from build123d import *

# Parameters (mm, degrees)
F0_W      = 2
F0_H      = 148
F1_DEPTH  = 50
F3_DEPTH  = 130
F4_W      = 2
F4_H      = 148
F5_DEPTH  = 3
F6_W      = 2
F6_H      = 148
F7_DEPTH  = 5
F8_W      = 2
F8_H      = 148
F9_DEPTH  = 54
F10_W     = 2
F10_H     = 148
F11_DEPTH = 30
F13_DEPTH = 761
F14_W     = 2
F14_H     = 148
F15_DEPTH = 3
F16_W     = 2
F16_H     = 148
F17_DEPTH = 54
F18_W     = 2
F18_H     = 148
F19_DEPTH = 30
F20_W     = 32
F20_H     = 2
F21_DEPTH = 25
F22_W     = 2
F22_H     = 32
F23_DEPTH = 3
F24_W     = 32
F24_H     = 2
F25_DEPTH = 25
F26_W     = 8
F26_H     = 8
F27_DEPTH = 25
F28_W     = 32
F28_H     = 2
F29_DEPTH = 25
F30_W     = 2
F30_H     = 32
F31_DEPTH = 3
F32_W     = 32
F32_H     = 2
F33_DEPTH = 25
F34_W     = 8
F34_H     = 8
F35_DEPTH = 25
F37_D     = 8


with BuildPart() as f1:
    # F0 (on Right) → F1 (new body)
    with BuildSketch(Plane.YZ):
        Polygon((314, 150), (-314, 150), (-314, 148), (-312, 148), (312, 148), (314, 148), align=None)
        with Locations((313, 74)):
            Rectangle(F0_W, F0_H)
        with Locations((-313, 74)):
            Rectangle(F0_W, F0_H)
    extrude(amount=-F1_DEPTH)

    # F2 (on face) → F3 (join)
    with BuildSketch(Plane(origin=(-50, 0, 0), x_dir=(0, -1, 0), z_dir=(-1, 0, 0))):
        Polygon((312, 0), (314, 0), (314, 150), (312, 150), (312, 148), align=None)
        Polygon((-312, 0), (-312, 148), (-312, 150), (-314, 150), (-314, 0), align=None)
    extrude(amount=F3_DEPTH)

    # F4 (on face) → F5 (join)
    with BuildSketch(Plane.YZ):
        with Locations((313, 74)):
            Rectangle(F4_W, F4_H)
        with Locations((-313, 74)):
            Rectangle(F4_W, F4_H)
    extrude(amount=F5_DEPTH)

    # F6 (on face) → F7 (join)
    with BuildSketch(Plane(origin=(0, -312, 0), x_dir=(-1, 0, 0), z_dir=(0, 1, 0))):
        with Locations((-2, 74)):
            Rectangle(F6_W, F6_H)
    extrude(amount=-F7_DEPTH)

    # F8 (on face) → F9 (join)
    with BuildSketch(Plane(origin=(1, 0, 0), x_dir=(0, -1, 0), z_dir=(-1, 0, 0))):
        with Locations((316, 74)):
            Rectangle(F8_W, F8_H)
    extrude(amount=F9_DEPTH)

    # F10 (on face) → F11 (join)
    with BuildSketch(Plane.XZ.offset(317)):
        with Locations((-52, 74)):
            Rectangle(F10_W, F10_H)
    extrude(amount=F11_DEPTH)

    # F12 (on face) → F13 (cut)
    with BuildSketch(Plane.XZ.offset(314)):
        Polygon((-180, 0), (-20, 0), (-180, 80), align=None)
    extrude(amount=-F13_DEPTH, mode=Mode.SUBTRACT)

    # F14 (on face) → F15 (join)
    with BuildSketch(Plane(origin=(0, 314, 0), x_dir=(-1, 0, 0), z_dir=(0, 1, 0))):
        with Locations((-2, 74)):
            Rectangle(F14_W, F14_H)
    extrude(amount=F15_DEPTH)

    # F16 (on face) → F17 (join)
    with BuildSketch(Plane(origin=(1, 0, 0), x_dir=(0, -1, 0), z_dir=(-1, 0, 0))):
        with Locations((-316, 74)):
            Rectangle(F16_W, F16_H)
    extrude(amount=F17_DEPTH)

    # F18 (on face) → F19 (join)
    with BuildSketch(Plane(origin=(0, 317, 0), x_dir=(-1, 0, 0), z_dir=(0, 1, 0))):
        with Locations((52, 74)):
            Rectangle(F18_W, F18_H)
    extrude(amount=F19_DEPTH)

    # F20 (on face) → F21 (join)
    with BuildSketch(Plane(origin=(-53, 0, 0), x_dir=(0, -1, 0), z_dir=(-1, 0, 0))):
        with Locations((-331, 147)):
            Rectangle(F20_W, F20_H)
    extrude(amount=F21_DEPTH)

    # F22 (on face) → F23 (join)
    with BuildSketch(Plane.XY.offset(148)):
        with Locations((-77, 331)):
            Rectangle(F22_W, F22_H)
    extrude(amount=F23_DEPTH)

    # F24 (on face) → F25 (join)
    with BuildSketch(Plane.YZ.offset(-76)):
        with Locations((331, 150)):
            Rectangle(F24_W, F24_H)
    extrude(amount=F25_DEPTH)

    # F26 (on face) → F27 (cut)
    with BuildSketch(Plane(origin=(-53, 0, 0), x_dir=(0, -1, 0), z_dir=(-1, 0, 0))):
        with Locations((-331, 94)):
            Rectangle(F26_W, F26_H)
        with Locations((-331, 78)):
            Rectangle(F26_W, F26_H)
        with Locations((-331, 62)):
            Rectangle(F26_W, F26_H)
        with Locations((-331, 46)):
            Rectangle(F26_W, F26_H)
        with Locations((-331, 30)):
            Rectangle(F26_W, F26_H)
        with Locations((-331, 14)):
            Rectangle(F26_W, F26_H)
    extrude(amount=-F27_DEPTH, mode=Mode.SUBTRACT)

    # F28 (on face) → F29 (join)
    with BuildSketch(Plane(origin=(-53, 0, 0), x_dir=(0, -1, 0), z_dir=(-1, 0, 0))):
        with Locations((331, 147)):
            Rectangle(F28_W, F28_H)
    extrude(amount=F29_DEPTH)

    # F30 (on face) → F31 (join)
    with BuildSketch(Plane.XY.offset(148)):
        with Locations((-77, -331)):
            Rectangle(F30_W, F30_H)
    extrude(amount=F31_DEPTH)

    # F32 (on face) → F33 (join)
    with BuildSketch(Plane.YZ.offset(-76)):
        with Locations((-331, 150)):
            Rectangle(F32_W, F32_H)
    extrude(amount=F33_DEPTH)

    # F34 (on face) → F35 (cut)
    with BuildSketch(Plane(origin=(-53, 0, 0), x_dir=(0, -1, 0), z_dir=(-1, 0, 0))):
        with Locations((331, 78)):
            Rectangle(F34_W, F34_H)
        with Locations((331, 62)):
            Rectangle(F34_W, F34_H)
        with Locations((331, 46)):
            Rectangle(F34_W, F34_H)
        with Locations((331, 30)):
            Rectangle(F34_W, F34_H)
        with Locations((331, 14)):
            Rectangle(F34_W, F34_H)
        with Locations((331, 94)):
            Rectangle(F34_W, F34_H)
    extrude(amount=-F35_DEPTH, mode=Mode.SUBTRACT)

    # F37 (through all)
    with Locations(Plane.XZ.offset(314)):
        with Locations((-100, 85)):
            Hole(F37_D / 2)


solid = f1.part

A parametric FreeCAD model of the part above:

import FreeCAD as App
import Part
import Sketcher

V = App.Vector
Q = App.Units.Quantity

doc = App.newDocument("Part")
body = doc.addObject("PartDesign::Body", "Body")

# Sketch on YZ plane
sketch1 = doc.addObject("Sketcher::SketchObject", "Sketch")
body.addObject(sketch1)
sketch1.AttachmentSupport = (doc.YZ_Plane, [""])
sketch1.MapMode = "FlatFace"
sketch1.addGeometry(Part.LineSegment(V(314, 150, 0), V(-314, 150, 0)), False)
sketch1.addGeometry(Part.LineSegment(V(-314, 150, 0), V(-314, 0, 0)), False)
sketch1.addGeometry(Part.LineSegment(V(-314, 0, 0), V(-312, 0, 0)), False)
sketch1.addGeometry(Part.LineSegment(V(-312, 0, 0), V(-312, 148, 0)), False)
sketch1.addGeometry(Part.LineSegment(V(-312, 148, 0), V(312, 148, 0)), False)
sketch1.addGeometry(Part.LineSegment(V(312, 148, 0), V(312, 0, 0)), False)
sketch1.addGeometry(Part.LineSegment(V(312, 0, 0), V(314, 0, 0)), False)
sketch1.addGeometry(Part.LineSegment(V(314, 0, 0), V(314, 150, 0)), False)
sketch1.addConstraint(Sketcher.Constraint("Coincident", 0, 2, 1, 1))
sketch1.addConstraint(Sketcher.Constraint("Coincident", 1, 2, 2, 1))
sketch1.addConstraint(Sketcher.Constraint("Coincident", 2, 2, 3, 1))
sketch1.addConstraint(Sketcher.Constraint("Coincident", 3, 2, 4, 1))
sketch1.addConstraint(Sketcher.Constraint("Coincident", 4, 2, 5, 1))
sketch1.addConstraint(Sketcher.Constraint("Coincident", 5, 2, 6, 1))
sketch1.addConstraint(Sketcher.Constraint("Coincident", 6, 2, 7, 1))
sketch1.addConstraint(Sketcher.Constraint("Coincident", 7, 2, 0, 1))
sketch1.addConstraint(Sketcher.Constraint("Horizontal", 0))
sketch1.addConstraint(Sketcher.Constraint("Vertical", 1))
sketch1.addConstraint(Sketcher.Constraint("Horizontal", 2))
sketch1.addConstraint(Sketcher.Constraint("Vertical", 3))
sketch1.addConstraint(Sketcher.Constraint("Horizontal", 4))
sketch1.addConstraint(Sketcher.Constraint("Vertical", 5))
sketch1.addConstraint(Sketcher.Constraint("Horizontal", 6))
sketch1.addConstraint(Sketcher.Constraint("Vertical", 7))
sketch1.addConstraint(Sketcher.Constraint("Symmetric", 2, 2, 5, 2, -1, 1))
sketch1.addConstraint(Sketcher.Constraint("Symmetric", 1, 2, 6, 2, -2))
sketch1.addConstraint(Sketcher.Constraint("DistanceX", 0, 2, 0, 1, Q("628 mm")))
sketch1.addConstraint(Sketcher.Constraint("DistanceX", 2, 1, 2, 2, Q("2 mm")))
sketch1.addConstraint(Sketcher.Constraint("DistanceY", 1, 2, 1, 1, Q("150 mm")))
sketch1.addConstraint(Sketcher.Constraint("DistanceY", 3, 1, 3, 2, Q("148 mm")))
pad1 = doc.addObject("PartDesign::Pad", "Pad")
body.addObject(pad1)
pad1.Profile = sketch1
pad1.Length = 50
pad1.Reversed = True

# Sketch on YZ plane
sketch2 = doc.addObject("Sketcher::SketchObject", "Sketch001")
body.addObject(sketch2)
sketch2.AttachmentSupport = (doc.YZ_Plane, [""])
sketch2.MapMode = "FlatFace"
sketch2.AttachmentOffset = App.Placement(V(0, 0, -50), App.Rotation())
sketch2.addGeometry(Part.LineSegment(V(-312, 0, 0), V(-314, 0, 0)), False)
sketch2.addGeometry(Part.LineSegment(V(-314, 0, 0), V(-314, 150, 0)), False)
sketch2.addGeometry(Part.LineSegment(V(-314, 150, 0), V(-312, 150, 0)), False)
sketch2.addGeometry(Part.LineSegment(V(-312, 150, 0), V(-312, 0, 0)), False)
sketch2.addGeometry(Part.LineSegment(V(312, 0, 0), V(312, 150, 0)), False)
sketch2.addGeometry(Part.LineSegment(V(312, 150, 0), V(314, 150, 0)), False)
sketch2.addGeometry(Part.LineSegment(V(314, 150, 0), V(314, 0, 0)), False)
sketch2.addGeometry(Part.LineSegment(V(314, 0, 0), V(312, 0, 0)), False)
sketch2.addConstraint(Sketcher.Constraint("Coincident", 0, 2, 1, 1))
sketch2.addConstraint(Sketcher.Constraint("Coincident", 1, 2, 2, 1))
sketch2.addConstraint(Sketcher.Constraint("Coincident", 2, 2, 3, 1))
sketch2.addConstraint(Sketcher.Constraint("Coincident", 3, 2, 0, 1))
sketch2.addConstraint(Sketcher.Constraint("Coincident", 4, 2, 5, 1))
sketch2.addConstraint(Sketcher.Constraint("Coincident", 5, 2, 6, 1))
sketch2.addConstraint(Sketcher.Constraint("Coincident", 6, 2, 7, 1))
sketch2.addConstraint(Sketcher.Constraint("Coincident", 7, 2, 4, 1))
sketch2.addConstraint(Sketcher.Constraint("Horizontal", 0))
sketch2.addConstraint(Sketcher.Constraint("Vertical", 1))
sketch2.addConstraint(Sketcher.Constraint("Horizontal", 2))
sketch2.addConstraint(Sketcher.Constraint("Vertical", 3))
sketch2.addConstraint(Sketcher.Constraint("Vertical", 4))
sketch2.addConstraint(Sketcher.Constraint("Horizontal", 5))
sketch2.addConstraint(Sketcher.Constraint("Vertical", 6))
sketch2.addConstraint(Sketcher.Constraint("Horizontal", 7))
sketch2.addConstraint(Sketcher.Constraint("Symmetric", 0, 2, 6, 2, -1, 1))
sketch2.addConstraint(Sketcher.Constraint("Symmetric", 2, 2, 4, 2, -2))
sketch2.addConstraint(Sketcher.Constraint("PointOnObject", 0, 2, -1))
sketch2.addConstraint(Sketcher.Constraint("DistanceX", 0, 2, 0, 1, Q("2 mm")))
sketch2.addConstraint(Sketcher.Constraint("DistanceY", 1, 1, 1, 2, Q("150 mm")))
sketch2.addConstraint(Sketcher.Constraint("DistanceX", 0, 2, -1, 1, Q("314 mm")))
pad2 = doc.addObject("PartDesign::Pad", "Pad001")
body.addObject(pad2)
pad2.Profile = sketch2
pad2.Length = 130
pad2.Reversed = True

# Sketch on YZ plane
sketch3 = doc.addObject("Sketcher::SketchObject", "Sketch002")
body.addObject(sketch3)
sketch3.AttachmentSupport = (doc.YZ_Plane, [""])
sketch3.MapMode = "FlatFace"
sketch3.addGeometry(Part.LineSegment(V(312, 148, 0), V(312, 0, 0)), False)
sketch3.addGeometry(Part.LineSegment(V(312, 0, 0), V(314, 0, 0)), False)
sketch3.addGeometry(Part.LineSegment(V(314, 0, 0), V(314, 148, 0)), False)
sketch3.addGeometry(Part.LineSegment(V(314, 148, 0), V(312, 148, 0)), False)
sketch3.addGeometry(Part.LineSegment(V(-314, 148, 0), V(-314, 0, 0)), False)
sketch3.addGeometry(Part.LineSegment(V(-314, 0, 0), V(-312, 0, 0)), False)
sketch3.addGeometry(Part.LineSegment(V(-312, 0, 0), V(-312, 148, 0)), False)
sketch3.addGeometry(Part.LineSegment(V(-312, 148, 0), V(-314, 148, 0)), False)
sketch3.addConstraint(Sketcher.Constraint("Coincident", 0, 2, 1, 1))
sketch3.addConstraint(Sketcher.Constraint("Coincident", 1, 2, 2, 1))
sketch3.addConstraint(Sketcher.Constraint("Coincident", 2, 2, 3, 1))
sketch3.addConstraint(Sketcher.Constraint("Coincident", 3, 2, 0, 1))
sketch3.addConstraint(Sketcher.Constraint("Coincident", 4, 2, 5, 1))
sketch3.addConstraint(Sketcher.Constraint("Coincident", 5, 2, 6, 1))
sketch3.addConstraint(Sketcher.Constraint("Coincident", 6, 2, 7, 1))
sketch3.addConstraint(Sketcher.Constraint("Coincident", 7, 2, 4, 1))
sketch3.addConstraint(Sketcher.Constraint("Vertical", 0))
sketch3.addConstraint(Sketcher.Constraint("Horizontal", 1))
sketch3.addConstraint(Sketcher.Constraint("Vertical", 2))
sketch3.addConstraint(Sketcher.Constraint("Horizontal", 3))
sketch3.addConstraint(Sketcher.Constraint("Vertical", 4))
sketch3.addConstraint(Sketcher.Constraint("Horizontal", 5))
sketch3.addConstraint(Sketcher.Constraint("Vertical", 6))
sketch3.addConstraint(Sketcher.Constraint("Horizontal", 7))
sketch3.addConstraint(Sketcher.Constraint("Symmetric", 1, 2, 4, 2, -1, 1))
sketch3.addConstraint(Sketcher.Constraint("Symmetric", 0, 2, 5, 2, -2))
sketch3.addConstraint(Sketcher.Constraint("Horizontal", 3, 2, 6, 2))
sketch3.addConstraint(Sketcher.Constraint("DistanceX", 1, 1, 1, 2, Q("2 mm")))
sketch3.addConstraint(Sketcher.Constraint("DistanceY", 0, 2, 0, 1, Q("148 mm")))
sketch3.addConstraint(Sketcher.Constraint("DistanceX", -1, 1, 0, 2, Q("312 mm")))
pad3 = doc.addObject("PartDesign::Pad", "Pad002")
body.addObject(pad3)
pad3.Profile = sketch3
pad3.Length = 3

# Sketch on XZ plane
sketch4 = doc.addObject("Sketcher::SketchObject", "Sketch003")
body.addObject(sketch4)
sketch4.AttachmentSupport = (doc.XZ_Plane, [""])
sketch4.MapMode = "FlatFace"
sketch4.AttachmentOffset = App.Placement(V(0, 0, 312), App.Rotation())
sketch4.addGeometry(Part.LineSegment(V(3, 148, 0), V(3, 0, 0)), False)
sketch4.addGeometry(Part.LineSegment(V(3, 0, 0), V(1, 0, 0)), False)
sketch4.addGeometry(Part.LineSegment(V(1, 0, 0), V(1, 148, 0)), False)
sketch4.addGeometry(Part.LineSegment(V(1, 148, 0), V(3, 148, 0)), False)
sketch4.addConstraint(Sketcher.Constraint("Coincident", 0, 2, 1, 1))
sketch4.addConstraint(Sketcher.Constraint("Coincident", 1, 2, 2, 1))
sketch4.addConstraint(Sketcher.Constraint("Coincident", 2, 2, 3, 1))
sketch4.addConstraint(Sketcher.Constraint("Coincident", 3, 2, 0, 1))
sketch4.addConstraint(Sketcher.Constraint("Vertical", 0))
sketch4.addConstraint(Sketcher.Constraint("Horizontal", 1))
sketch4.addConstraint(Sketcher.Constraint("Vertical", 2))
sketch4.addConstraint(Sketcher.Constraint("Horizontal", 3))
sketch4.addConstraint(Sketcher.Constraint("PointOnObject", 0, 2, -1))
sketch4.addConstraint(Sketcher.Constraint("DistanceX", 1, 2, 1, 1, Q("2 mm")))
sketch4.addConstraint(Sketcher.Constraint("DistanceY", 0, 2, 0, 1, Q("148 mm")))
sketch4.addConstraint(Sketcher.Constraint("DistanceX", -1, 1, 0, 2, Q("3 mm")))
pad4 = doc.addObject("PartDesign::Pad", "Pad003")
body.addObject(pad4)
pad4.Profile = sketch4
pad4.Length = 5

# Sketch on YZ plane
sketch5 = doc.addObject("Sketcher::SketchObject", "Sketch004")
body.addObject(sketch5)
sketch5.AttachmentSupport = (doc.YZ_Plane, [""])
sketch5.MapMode = "FlatFace"
sketch5.AttachmentOffset = App.Placement(V(0, 0, 1), App.Rotation())
sketch5.addGeometry(Part.LineSegment(V(-315, 148, 0), V(-315, 0, 0)), False)
sketch5.addGeometry(Part.LineSegment(V(-315, 0, 0), V(-317, 0, 0)), False)
sketch5.addGeometry(Part.LineSegment(V(-317, 0, 0), V(-317, 148, 0)), False)
sketch5.addGeometry(Part.LineSegment(V(-317, 148, 0), V(-315, 148, 0)), False)
sketch5.addConstraint(Sketcher.Constraint("Coincident", 0, 2, 1, 1))
sketch5.addConstraint(Sketcher.Constraint("Coincident", 1, 2, 2, 1))
sketch5.addConstraint(Sketcher.Constraint("Coincident", 2, 2, 3, 1))
sketch5.addConstraint(Sketcher.Constraint("Coincident", 3, 2, 0, 1))
sketch5.addConstraint(Sketcher.Constraint("Vertical", 0))
sketch5.addConstraint(Sketcher.Constraint("Horizontal", 1))
sketch5.addConstraint(Sketcher.Constraint("Vertical", 2))
sketch5.addConstraint(Sketcher.Constraint("Horizontal", 3))
sketch5.addConstraint(Sketcher.Constraint("PointOnObject", 0, 2, -1))
sketch5.addConstraint(Sketcher.Constraint("DistanceX", 1, 2, 1, 1, Q("2 mm")))
sketch5.addConstraint(Sketcher.Constraint("DistanceY", 0, 2, 0, 1, Q("148 mm")))
sketch5.addConstraint(Sketcher.Constraint("DistanceX", 0, 2, -1, 1, Q("315 mm")))
pad5 = doc.addObject("PartDesign::Pad", "Pad004")
body.addObject(pad5)
pad5.Profile = sketch5
pad5.Length = 54
pad5.Reversed = True

# Sketch on XZ plane
sketch6 = doc.addObject("Sketcher::SketchObject", "Sketch005")
body.addObject(sketch6)
sketch6.AttachmentSupport = (doc.XZ_Plane, [""])
sketch6.MapMode = "FlatFace"
sketch6.AttachmentOffset = App.Placement(V(0, 0, 317), App.Rotation())
sketch6.addGeometry(Part.LineSegment(V(-53, 148, 0), V(-53, 0, 0)), False)
sketch6.addGeometry(Part.LineSegment(V(-53, 0, 0), V(-51, 0, 0)), False)
sketch6.addGeometry(Part.LineSegment(V(-51, 0, 0), V(-51, 148, 0)), False)
sketch6.addGeometry(Part.LineSegment(V(-51, 148, 0), V(-53, 148, 0)), False)
sketch6.addConstraint(Sketcher.Constraint("Coincident", 0, 2, 1, 1))
sketch6.addConstraint(Sketcher.Constraint("Coincident", 1, 2, 2, 1))
sketch6.addConstraint(Sketcher.Constraint("Coincident", 2, 2, 3, 1))
sketch6.addConstraint(Sketcher.Constraint("Coincident", 3, 2, 0, 1))
sketch6.addConstraint(Sketcher.Constraint("Vertical", 0))
sketch6.addConstraint(Sketcher.Constraint("Horizontal", 1))
sketch6.addConstraint(Sketcher.Constraint("Vertical", 2))
sketch6.addConstraint(Sketcher.Constraint("Horizontal", 3))
sketch6.addConstraint(Sketcher.Constraint("PointOnObject", 0, 2, -1))
sketch6.addConstraint(Sketcher.Constraint("DistanceX", 1, 1, 1, 2, Q("2 mm")))
sketch6.addConstraint(Sketcher.Constraint("DistanceY", 0, 2, 0, 1, Q("148 mm")))
sketch6.addConstraint(Sketcher.Constraint("DistanceX", 0, 2, -1, 1, Q("53 mm")))
pad6 = doc.addObject("PartDesign::Pad", "Pad005")
body.addObject(pad6)
pad6.Profile = sketch6
pad6.Length = 30

# Sketch on XZ plane
sketch7 = doc.addObject("Sketcher::SketchObject", "Sketch006")
body.addObject(sketch7)
sketch7.AttachmentSupport = (doc.XZ_Plane, [""])
sketch7.MapMode = "FlatFace"
sketch7.AttachmentOffset = App.Placement(V(0, 0, 314), App.Rotation())
sketch7.addGeometry(Part.LineSegment(V(-180, 0, 0), V(-20, 0, 0)), False)
sketch7.addGeometry(Part.LineSegment(V(-20, 0, 0), V(-180, 80, 0)), False)
sketch7.addGeometry(Part.LineSegment(V(-180, 80, 0), V(-180, 0, 0)), False)
sketch7.addConstraint(Sketcher.Constraint("Coincident", 0, 2, 1, 1))
sketch7.addConstraint(Sketcher.Constraint("Coincident", 1, 2, 2, 1))
sketch7.addConstraint(Sketcher.Constraint("Coincident", 2, 2, 0, 1))
sketch7.addConstraint(Sketcher.Constraint("Horizontal", 0))
sketch7.addConstraint(Sketcher.Constraint("Vertical", 2))
sketch7.addConstraint(Sketcher.Constraint("PointOnObject", 0, 2, -1))
sketch7.addConstraint(Sketcher.Constraint("DistanceX", 0, 1, 0, 2, Q("160 mm")))
sketch7.addConstraint(Sketcher.Constraint("DistanceY", 2, 2, 2, 1, Q("80 mm")))
sketch7.addConstraint(Sketcher.Constraint("DistanceX", 0, 2, -1, 1, Q("20 mm")))
pocket1 = doc.addObject("PartDesign::Pocket", "Pocket")
body.addObject(pocket1)
pocket1.Profile = sketch7
pocket1.Length = 761

# Sketch on XZ plane
sketch8 = doc.addObject("Sketcher::SketchObject", "Sketch007")
body.addObject(sketch8)
sketch8.AttachmentSupport = (doc.XZ_Plane, [""])
sketch8.MapMode = "FlatFace"
sketch8.AttachmentOffset = App.Placement(V(0, 0, -314), App.Rotation())
sketch8.addGeometry(Part.LineSegment(V(3, 148, 0), V(3, 0, 0)), False)
sketch8.addGeometry(Part.LineSegment(V(3, 0, 0), V(1, 0, 0)), False)
sketch8.addGeometry(Part.LineSegment(V(1, 0, 0), V(1, 148, 0)), False)
sketch8.addGeometry(Part.LineSegment(V(1, 148, 0), V(3, 148, 0)), False)
sketch8.addConstraint(Sketcher.Constraint("Coincident", 0, 2, 1, 1))
sketch8.addConstraint(Sketcher.Constraint("Coincident", 1, 2, 2, 1))
sketch8.addConstraint(Sketcher.Constraint("Coincident", 2, 2, 3, 1))
sketch8.addConstraint(Sketcher.Constraint("Coincident", 3, 2, 0, 1))
sketch8.addConstraint(Sketcher.Constraint("Vertical", 0))
sketch8.addConstraint(Sketcher.Constraint("Horizontal", 1))
sketch8.addConstraint(Sketcher.Constraint("Vertical", 2))
sketch8.addConstraint(Sketcher.Constraint("Horizontal", 3))
sketch8.addConstraint(Sketcher.Constraint("PointOnObject", 0, 2, -1))
sketch8.addConstraint(Sketcher.Constraint("DistanceX", 1, 2, 1, 1, Q("2 mm")))
sketch8.addConstraint(Sketcher.Constraint("DistanceY", 0, 2, 0, 1, Q("148 mm")))
sketch8.addConstraint(Sketcher.Constraint("DistanceX", -1, 1, 0, 2, Q("3 mm")))
pad7 = doc.addObject("PartDesign::Pad", "Pad006")
body.addObject(pad7)
pad7.Profile = sketch8
pad7.Length = 3
pad7.Reversed = True

# Sketch on YZ plane
sketch9 = doc.addObject("Sketcher::SketchObject", "Sketch008")
body.addObject(sketch9)
sketch9.AttachmentSupport = (doc.YZ_Plane, [""])
sketch9.MapMode = "FlatFace"
sketch9.AttachmentOffset = App.Placement(V(0, 0, 1), App.Rotation())
sketch9.addGeometry(Part.LineSegment(V(317, 148, 0), V(317, 0, 0)), False)
sketch9.addGeometry(Part.LineSegment(V(317, 0, 0), V(315, 0, 0)), False)
sketch9.addGeometry(Part.LineSegment(V(315, 0, 0), V(315, 148, 0)), False)
sketch9.addGeometry(Part.LineSegment(V(315, 148, 0), V(317, 148, 0)), False)
sketch9.addConstraint(Sketcher.Constraint("Coincident", 0, 2, 1, 1))
sketch9.addConstraint(Sketcher.Constraint("Coincident", 1, 2, 2, 1))
sketch9.addConstraint(Sketcher.Constraint("Coincident", 2, 2, 3, 1))
sketch9.addConstraint(Sketcher.Constraint("Coincident", 3, 2, 0, 1))
sketch9.addConstraint(Sketcher.Constraint("Vertical", 0))
sketch9.addConstraint(Sketcher.Constraint("Horizontal", 1))
sketch9.addConstraint(Sketcher.Constraint("Vertical", 2))
sketch9.addConstraint(Sketcher.Constraint("Horizontal", 3))
sketch9.addConstraint(Sketcher.Constraint("PointOnObject", 0, 2, -1))
sketch9.addConstraint(Sketcher.Constraint("DistanceX", 1, 2, 1, 1, Q("2 mm")))
sketch9.addConstraint(Sketcher.Constraint("DistanceY", 0, 2, 0, 1, Q("148 mm")))
sketch9.addConstraint(Sketcher.Constraint("DistanceX", -1, 1, 0, 2, Q("317 mm")))
pad8 = doc.addObject("PartDesign::Pad", "Pad007")
body.addObject(pad8)
pad8.Profile = sketch9
pad8.Length = 54
pad8.Reversed = True

# Sketch on XZ plane
sketch10 = doc.addObject("Sketcher::SketchObject", "Sketch009")
body.addObject(sketch10)
sketch10.AttachmentSupport = (doc.XZ_Plane, [""])
sketch10.MapMode = "FlatFace"
sketch10.AttachmentOffset = App.Placement(V(0, 0, -317), App.Rotation())
sketch10.addGeometry(Part.LineSegment(V(-51, 148, 0), V(-51, 0, 0)), False)
sketch10.addGeometry(Part.LineSegment(V(-51, 0, 0), V(-53, 0, 0)), False)
sketch10.addGeometry(Part.LineSegment(V(-53, 0, 0), V(-53, 148, 0)), False)
sketch10.addGeometry(Part.LineSegment(V(-53, 148, 0), V(-51, 148, 0)), False)
sketch10.addConstraint(Sketcher.Constraint("Coincident", 0, 2, 1, 1))
sketch10.addConstraint(Sketcher.Constraint("Coincident", 1, 2, 2, 1))
sketch10.addConstraint(Sketcher.Constraint("Coincident", 2, 2, 3, 1))
sketch10.addConstraint(Sketcher.Constraint("Coincident", 3, 2, 0, 1))
sketch10.addConstraint(Sketcher.Constraint("Vertical", 0))
sketch10.addConstraint(Sketcher.Constraint("Horizontal", 1))
sketch10.addConstraint(Sketcher.Constraint("Vertical", 2))
sketch10.addConstraint(Sketcher.Constraint("Horizontal", 3))
sketch10.addConstraint(Sketcher.Constraint("PointOnObject", 0, 2, -1))
sketch10.addConstraint(Sketcher.Constraint("DistanceX", 1, 2, 1, 1, Q("2 mm")))
sketch10.addConstraint(Sketcher.Constraint("DistanceY", 0, 2, 0, 1, Q("148 mm")))
sketch10.addConstraint(Sketcher.Constraint("DistanceX", 0, 2, -1, 1, Q("51 mm")))
pad9 = doc.addObject("PartDesign::Pad", "Pad008")
body.addObject(pad9)
pad9.Profile = sketch10
pad9.Length = 30
pad9.Reversed = True

# Sketch on YZ plane
sketch11 = doc.addObject("Sketcher::SketchObject", "Sketch010")
body.addObject(sketch11)
sketch11.AttachmentSupport = (doc.YZ_Plane, [""])
sketch11.MapMode = "FlatFace"
sketch11.AttachmentOffset = App.Placement(V(0, 0, -53), App.Rotation())
sketch11.addGeometry(Part.LineSegment(V(347, 148, 0), V(347, 146, 0)), False)
sketch11.addGeometry(Part.LineSegment(V(347, 146, 0), V(315, 146, 0)), False)
sketch11.addGeometry(Part.LineSegment(V(315, 146, 0), V(315, 148, 0)), False)
sketch11.addGeometry(Part.LineSegment(V(315, 148, 0), V(347, 148, 0)), False)
sketch11.addConstraint(Sketcher.Constraint("Coincident", 0, 2, 1, 1))
sketch11.addConstraint(Sketcher.Constraint("Coincident", 1, 2, 2, 1))
sketch11.addConstraint(Sketcher.Constraint("Coincident", 2, 2, 3, 1))
sketch11.addConstraint(Sketcher.Constraint("Coincident", 3, 2, 0, 1))
sketch11.addConstraint(Sketcher.Constraint("Vertical", 0))
sketch11.addConstraint(Sketcher.Constraint("Horizontal", 1))
sketch11.addConstraint(Sketcher.Constraint("Vertical", 2))
sketch11.addConstraint(Sketcher.Constraint("Horizontal", 3))
sketch11.addConstraint(Sketcher.Constraint("DistanceX", 1, 2, 1, 1, Q("32 mm")))
sketch11.addConstraint(Sketcher.Constraint("DistanceY", 0, 2, 0, 1, Q("2 mm")))
sketch11.addConstraint(Sketcher.Constraint("DistanceX", -1, 1, 0, 2, Q("347 mm")))
sketch11.addConstraint(Sketcher.Constraint("DistanceY", -1, 1, 0, 2, Q("146 mm")))
pad10 = doc.addObject("PartDesign::Pad", "Pad009")
body.addObject(pad10)
pad10.Profile = sketch11
pad10.Length = 25
pad10.Reversed = True

# Sketch on XY plane
sketch12 = doc.addObject("Sketcher::SketchObject", "Sketch011")
body.addObject(sketch12)
sketch12.AttachmentSupport = (doc.XY_Plane, [""])
sketch12.MapMode = "FlatFace"
sketch12.AttachmentOffset = App.Placement(V(0, 0, 148), App.Rotation())
sketch12.addGeometry(Part.LineSegment(V(-78, 347, 0), V(-78, 315, 0)), False)
sketch12.addGeometry(Part.LineSegment(V(-78, 315, 0), V(-76, 315, 0)), False)
sketch12.addGeometry(Part.LineSegment(V(-76, 315, 0), V(-76, 347, 0)), False)
sketch12.addGeometry(Part.LineSegment(V(-76, 347, 0), V(-78, 347, 0)), False)
sketch12.addConstraint(Sketcher.Constraint("Coincident", 0, 2, 1, 1))
sketch12.addConstraint(Sketcher.Constraint("Coincident", 1, 2, 2, 1))
sketch12.addConstraint(Sketcher.Constraint("Coincident", 2, 2, 3, 1))
sketch12.addConstraint(Sketcher.Constraint("Coincident", 3, 2, 0, 1))
sketch12.addConstraint(Sketcher.Constraint("Vertical", 0))
sketch12.addConstraint(Sketcher.Constraint("Horizontal", 1))
sketch12.addConstraint(Sketcher.Constraint("Vertical", 2))
sketch12.addConstraint(Sketcher.Constraint("Horizontal", 3))
sketch12.addConstraint(Sketcher.Constraint("DistanceX", 1, 1, 1, 2, Q("2 mm")))
sketch12.addConstraint(Sketcher.Constraint("DistanceY", 0, 2, 0, 1, Q("32 mm")))
sketch12.addConstraint(Sketcher.Constraint("DistanceX", 0, 2, -1, 1, Q("78 mm")))
sketch12.addConstraint(Sketcher.Constraint("DistanceY", -1, 1, 0, 2, Q("315 mm")))
pad11 = doc.addObject("PartDesign::Pad", "Pad010")
body.addObject(pad11)
pad11.Profile = sketch12
pad11.Length = 3

# Sketch on YZ plane
sketch13 = doc.addObject("Sketcher::SketchObject", "Sketch012")
body.addObject(sketch13)
sketch13.AttachmentSupport = (doc.YZ_Plane, [""])
sketch13.MapMode = "FlatFace"
sketch13.AttachmentOffset = App.Placement(V(0, 0, -76), App.Rotation())
sketch13.addGeometry(Part.LineSegment(V(315, 151, 0), V(315, 149, 0)), False)
sketch13.addGeometry(Part.LineSegment(V(315, 149, 0), V(347, 149, 0)), False)
sketch13.addGeometry(Part.LineSegment(V(347, 149, 0), V(347, 151, 0)), False)
sketch13.addGeometry(Part.LineSegment(V(347, 151, 0), V(315, 151, 0)), False)
sketch13.addConstraint(Sketcher.Constraint("Coincident", 0, 2, 1, 1))
sketch13.addConstraint(Sketcher.Constraint("Coincident", 1, 2, 2, 1))
sketch13.addConstraint(Sketcher.Constraint("Coincident", 2, 2, 3, 1))
sketch13.addConstraint(Sketcher.Constraint("Coincident", 3, 2, 0, 1))
sketch13.addConstraint(Sketcher.Constraint("Vertical", 0))
sketch13.addConstraint(Sketcher.Constraint("Horizontal", 1))
sketch13.addConstraint(Sketcher.Constraint("Vertical", 2))
sketch13.addConstraint(Sketcher.Constraint("Horizontal", 3))
sketch13.addConstraint(Sketcher.Constraint("DistanceX", 1, 1, 1, 2, Q("32 mm")))
sketch13.addConstraint(Sketcher.Constraint("DistanceY", 0, 2, 0, 1, Q("2 mm")))
sketch13.addConstraint(Sketcher.Constraint("DistanceX", -1, 1, 0, 2, Q("315 mm")))
sketch13.addConstraint(Sketcher.Constraint("DistanceY", -1, 1, 0, 2, Q("149 mm")))
pad12 = doc.addObject("PartDesign::Pad", "Pad011")
body.addObject(pad12)
pad12.Profile = sketch13
pad12.Length = 25

# Sketch on YZ plane
sketch14 = doc.addObject("Sketcher::SketchObject", "Sketch013")
body.addObject(sketch14)
sketch14.AttachmentSupport = (doc.YZ_Plane, [""])
sketch14.MapMode = "FlatFace"
sketch14.AttachmentOffset = App.Placement(V(0, 0, -53), App.Rotation())
sketch14.addGeometry(Part.LineSegment(V(335, 98, 0), V(335, 90, 0)), False)
sketch14.addGeometry(Part.LineSegment(V(335, 90, 0), V(327, 90, 0)), False)
sketch14.addGeometry(Part.LineSegment(V(327, 90, 0), V(327, 98, 0)), False)
sketch14.addGeometry(Part.LineSegment(V(327, 98, 0), V(335, 98, 0)), False)
sketch14.addGeometry(Part.LineSegment(V(335, 82, 0), V(335, 74, 0)), False)
sketch14.addGeometry(Part.LineSegment(V(335, 74, 0), V(327, 74, 0)), False)
sketch14.addGeometry(Part.LineSegment(V(327, 74, 0), V(327, 82, 0)), False)
sketch14.addGeometry(Part.LineSegment(V(327, 82, 0), V(335, 82, 0)), False)
sketch14.addGeometry(Part.LineSegment(V(335, 66, 0), V(335, 58, 0)), False)
sketch14.addGeometry(Part.LineSegment(V(335, 58, 0), V(327, 58, 0)), False)
sketch14.addGeometry(Part.LineSegment(V(327, 58, 0), V(327, 66, 0)), False)
sketch14.addGeometry(Part.LineSegment(V(327, 66, 0), V(335, 66, 0)), False)
sketch14.addGeometry(Part.LineSegment(V(335, 50, 0), V(335, 42, 0)), False)
sketch14.addGeometry(Part.LineSegment(V(335, 42, 0), V(327, 42, 0)), False)
sketch14.addGeometry(Part.LineSegment(V(327, 42, 0), V(327, 50, 0)), False)
sketch14.addGeometry(Part.LineSegment(V(327, 50, 0), V(335, 50, 0)), False)
sketch14.addGeometry(Part.LineSegment(V(335, 34, 0), V(335, 26, 0)), False)
sketch14.addGeometry(Part.LineSegment(V(335, 26, 0), V(327, 26, 0)), False)
sketch14.addGeometry(Part.LineSegment(V(327, 26, 0), V(327, 34, 0)), False)
sketch14.addGeometry(Part.LineSegment(V(327, 34, 0), V(335, 34, 0)), False)
sketch14.addGeometry(Part.LineSegment(V(335, 18, 0), V(335, 10, 0)), False)
sketch14.addGeometry(Part.LineSegment(V(335, 10, 0), V(327, 10, 0)), False)
sketch14.addGeometry(Part.LineSegment(V(327, 10, 0), V(327, 18, 0)), False)
sketch14.addGeometry(Part.LineSegment(V(327, 18, 0), V(335, 18, 0)), False)
sketch14.addConstraint(Sketcher.Constraint("Coincident", 0, 2, 1, 1))
sketch14.addConstraint(Sketcher.Constraint("Coincident", 1, 2, 2, 1))
sketch14.addConstraint(Sketcher.Constraint("Coincident", 2, 2, 3, 1))
sketch14.addConstraint(Sketcher.Constraint("Coincident", 3, 2, 0, 1))
sketch14.addConstraint(Sketcher.Constraint("Coincident", 4, 2, 5, 1))
sketch14.addConstraint(Sketcher.Constraint("Coincident", 5, 2, 6, 1))
sketch14.addConstraint(Sketcher.Constraint("Coincident", 6, 2, 7, 1))
sketch14.addConstraint(Sketcher.Constraint("Coincident", 7, 2, 4, 1))
sketch14.addConstraint(Sketcher.Constraint("Coincident", 8, 2, 9, 1))
sketch14.addConstraint(Sketcher.Constraint("Coincident", 9, 2, 10, 1))
sketch14.addConstraint(Sketcher.Constraint("Coincident", 10, 2, 11, 1))
sketch14.addConstraint(Sketcher.Constraint("Coincident", 11, 2, 8, 1))
sketch14.addConstraint(Sketcher.Constraint("Coincident", 12, 2, 13, 1))
sketch14.addConstraint(Sketcher.Constraint("Coincident", 13, 2, 14, 1))
sketch14.addConstraint(Sketcher.Constraint("Coincident", 14, 2, 15, 1))
sketch14.addConstraint(Sketcher.Constraint("Coincident", 15, 2, 12, 1))
sketch14.addConstraint(Sketcher.Constraint("Coincident", 16, 2, 17, 1))
sketch14.addConstraint(Sketcher.Constraint("Coincident", 17, 2, 18, 1))
sketch14.addConstraint(Sketcher.Constraint("Coincident", 18, 2, 19, 1))
sketch14.addConstraint(Sketcher.Constraint("Coincident", 19, 2, 16, 1))
sketch14.addConstraint(Sketcher.Constraint("Coincident", 20, 2, 21, 1))
sketch14.addConstraint(Sketcher.Constraint("Coincident", 21, 2, 22, 1))
sketch14.addConstraint(Sketcher.Constraint("Coincident", 22, 2, 23, 1))
sketch14.addConstraint(Sketcher.Constraint("Coincident", 23, 2, 20, 1))
sketch14.addConstraint(Sketcher.Constraint("Vertical", 0))
sketch14.addConstraint(Sketcher.Constraint("Horizontal", 1))
sketch14.addConstraint(Sketcher.Constraint("Vertical", 2))
sketch14.addConstraint(Sketcher.Constraint("Horizontal", 3))
sketch14.addConstraint(Sketcher.Constraint("Vertical", 4))
sketch14.addConstraint(Sketcher.Constraint("Horizontal", 5))
sketch14.addConstraint(Sketcher.Constraint("Vertical", 6))
sketch14.addConstraint(Sketcher.Constraint("Horizontal", 7))
sketch14.addConstraint(Sketcher.Constraint("Vertical", 8))
sketch14.addConstraint(Sketcher.Constraint("Horizontal", 9))
sketch14.addConstraint(Sketcher.Constraint("Vertical", 10))
sketch14.addConstraint(Sketcher.Constraint("Horizontal", 11))
sketch14.addConstraint(Sketcher.Constraint("Vertical", 12))
sketch14.addConstraint(Sketcher.Constraint("Horizontal", 13))
sketch14.addConstraint(Sketcher.Constraint("Vertical", 14))
sketch14.addConstraint(Sketcher.Constraint("Horizontal", 15))
sketch14.addConstraint(Sketcher.Constraint("Vertical", 16))
sketch14.addConstraint(Sketcher.Constraint("Horizontal", 17))
sketch14.addConstraint(Sketcher.Constraint("Vertical", 18))
sketch14.addConstraint(Sketcher.Constraint("Horizontal", 19))
sketch14.addConstraint(Sketcher.Constraint("Vertical", 20))
sketch14.addConstraint(Sketcher.Constraint("Horizontal", 21))
sketch14.addConstraint(Sketcher.Constraint("Vertical", 22))
sketch14.addConstraint(Sketcher.Constraint("Horizontal", 23))
sketch14.addConstraint(Sketcher.Constraint("Vertical", 3, 2, 4, 2))
sketch14.addConstraint(Sketcher.Constraint("Vertical", 2, 2, 5, 2))
sketch14.addConstraint(Sketcher.Constraint("Vertical", 7, 2, 8, 2))
sketch14.addConstraint(Sketcher.Constraint("Vertical", 6, 2, 9, 2))
sketch14.addConstraint(Sketcher.Constraint("Vertical", 11, 2, 12, 2))
sketch14.addConstraint(Sketcher.Constraint("Vertical", 10, 2, 13, 2))
sketch14.addConstraint(Sketcher.Constraint("Vertical", 15, 2, 16, 2))
sketch14.addConstraint(Sketcher.Constraint("Vertical", 14, 2, 17, 2))
sketch14.addConstraint(Sketcher.Constraint("Vertical", 19, 2, 20, 2))
sketch14.addConstraint(Sketcher.Constraint("Vertical", 18, 2, 21, 2))
sketch14.addConstraint(Sketcher.Constraint("Equal", 23, 0))
sketch14.addConstraint(Sketcher.Constraint("Equal", 2, 4))
sketch14.addConstraint(Sketcher.Constraint("Equal", 6, 8))
sketch14.addConstraint(Sketcher.Constraint("Equal", 10, 12))
sketch14.addConstraint(Sketcher.Constraint("Equal", 14, 16))
sketch14.addConstraint(Sketcher.Constraint("Equal", 18, 20))
sketch14.addConstraint(Sketcher.Constraint("DistanceX", 1, 2, 1, 1, Q("8 mm")))
sketch14.addConstraint(Sketcher.Constraint("DistanceX", -1, 1, 0, 2, Q("335 mm")))
sketch14.addConstraint(Sketcher.Constraint("DistanceY", -1, 1, 0, 2, Q("90 mm")))
sketch14.addConstraint(Sketcher.Constraint("DistanceY", -1, 1, 4, 2, Q("74 mm")))
sketch14.addConstraint(Sketcher.Constraint("DistanceY", -1, 1, 8, 2, Q("58 mm")))
sketch14.addConstraint(Sketcher.Constraint("DistanceY", -1, 1, 12, 2, Q("42 mm")))
sketch14.addConstraint(Sketcher.Constraint("DistanceY", -1, 1, 16, 2, Q("26 mm")))
sketch14.addConstraint(Sketcher.Constraint("DistanceY", -1, 1, 20, 2, Q("10 mm")))
pocket2 = doc.addObject("PartDesign::Pocket", "Pocket001")
body.addObject(pocket2)
pocket2.Profile = sketch14
pocket2.Length = 25
pocket2.Reversed = True

# Sketch on YZ plane
sketch15 = doc.addObject("Sketcher::SketchObject", "Sketch014")
body.addObject(sketch15)
sketch15.AttachmentSupport = (doc.YZ_Plane, [""])
sketch15.MapMode = "FlatFace"
sketch15.AttachmentOffset = App.Placement(V(0, 0, -53), App.Rotation())
sketch15.addGeometry(Part.LineSegment(V(-315, 148, 0), V(-315, 146, 0)), False)
sketch15.addGeometry(Part.LineSegment(V(-315, 146, 0), V(-347, 146, 0)), False)
sketch15.addGeometry(Part.LineSegment(V(-347, 146, 0), V(-347, 148, 0)), False)
sketch15.addGeometry(Part.LineSegment(V(-347, 148, 0), V(-315, 148, 0)), False)
sketch15.addConstraint(Sketcher.Constraint("Coincident", 0, 2, 1, 1))
sketch15.addConstraint(Sketcher.Constraint("Coincident", 1, 2, 2, 1))
sketch15.addConstraint(Sketcher.Constraint("Coincident", 2, 2, 3, 1))
sketch15.addConstraint(Sketcher.Constraint("Coincident", 3, 2, 0, 1))
sketch15.addConstraint(Sketcher.Constraint("Vertical", 0))
sketch15.addConstraint(Sketcher.Constraint("Horizontal", 1))
sketch15.addConstraint(Sketcher.Constraint("Vertical", 2))
sketch15.addConstraint(Sketcher.Constraint("Horizontal", 3))
sketch15.addConstraint(Sketcher.Constraint("DistanceX", 1, 2, 1, 1, Q("32 mm")))
sketch15.addConstraint(Sketcher.Constraint("DistanceY", 0, 2, 0, 1, Q("2 mm")))
sketch15.addConstraint(Sketcher.Constraint("DistanceX", 0, 2, -1, 1, Q("315 mm")))
sketch15.addConstraint(Sketcher.Constraint("DistanceY", -1, 1, 0, 2, Q("146 mm")))
pad13 = doc.addObject("PartDesign::Pad", "Pad012")
body.addObject(pad13)
pad13.Profile = sketch15
pad13.Length = 25
pad13.Reversed = True

# Sketch on XY plane
sketch16 = doc.addObject("Sketcher::SketchObject", "Sketch015")
body.addObject(sketch16)
sketch16.AttachmentSupport = (doc.XY_Plane, [""])
sketch16.MapMode = "FlatFace"
sketch16.AttachmentOffset = App.Placement(V(0, 0, 148), App.Rotation())
sketch16.addGeometry(Part.LineSegment(V(-78, -315, 0), V(-78, -347, 0)), False)
sketch16.addGeometry(Part.LineSegment(V(-78, -347, 0), V(-76, -347, 0)), False)
sketch16.addGeometry(Part.LineSegment(V(-76, -347, 0), V(-76, -315, 0)), False)
sketch16.addGeometry(Part.LineSegment(V(-76, -315, 0), V(-78, -315, 0)), False)
sketch16.addConstraint(Sketcher.Constraint("Coincident", 0, 2, 1, 1))
sketch16.addConstraint(Sketcher.Constraint("Coincident", 1, 2, 2, 1))
sketch16.addConstraint(Sketcher.Constraint("Coincident", 2, 2, 3, 1))
sketch16.addConstraint(Sketcher.Constraint("Coincident", 3, 2, 0, 1))
sketch16.addConstraint(Sketcher.Constraint("Vertical", 0))
sketch16.addConstraint(Sketcher.Constraint("Horizontal", 1))
sketch16.addConstraint(Sketcher.Constraint("Vertical", 2))
sketch16.addConstraint(Sketcher.Constraint("Horizontal", 3))
sketch16.addConstraint(Sketcher.Constraint("DistanceX", 1, 1, 1, 2, Q("2 mm")))
sketch16.addConstraint(Sketcher.Constraint("DistanceY", 0, 2, 0, 1, Q("32 mm")))
sketch16.addConstraint(Sketcher.Constraint("DistanceX", 0, 2, -1, 1, Q("78 mm")))
sketch16.addConstraint(Sketcher.Constraint("DistanceY", 0, 2, -1, 1, Q("347 mm")))
pad14 = doc.addObject("PartDesign::Pad", "Pad013")
body.addObject(pad14)
pad14.Profile = sketch16
pad14.Length = 3

# Sketch on YZ plane
sketch17 = doc.addObject("Sketcher::SketchObject", "Sketch016")
body.addObject(sketch17)
sketch17.AttachmentSupport = (doc.YZ_Plane, [""])
sketch17.MapMode = "FlatFace"
sketch17.AttachmentOffset = App.Placement(V(0, 0, -76), App.Rotation())
sketch17.addGeometry(Part.LineSegment(V(-347, 151, 0), V(-347, 149, 0)), False)
sketch17.addGeometry(Part.LineSegment(V(-347, 149, 0), V(-315, 149, 0)), False)
sketch17.addGeometry(Part.LineSegment(V(-315, 149, 0), V(-315, 151, 0)), False)
sketch17.addGeometry(Part.LineSegment(V(-315, 151, 0), V(-347, 151, 0)), False)
sketch17.addConstraint(Sketcher.Constraint("Coincident", 0, 2, 1, 1))
sketch17.addConstraint(Sketcher.Constraint("Coincident", 1, 2, 2, 1))
sketch17.addConstraint(Sketcher.Constraint("Coincident", 2, 2, 3, 1))
sketch17.addConstraint(Sketcher.Constraint("Coincident", 3, 2, 0, 1))
sketch17.addConstraint(Sketcher.Constraint("Vertical", 0))
sketch17.addConstraint(Sketcher.Constraint("Horizontal", 1))
sketch17.addConstraint(Sketcher.Constraint("Vertical", 2))
sketch17.addConstraint(Sketcher.Constraint("Horizontal", 3))
sketch17.addConstraint(Sketcher.Constraint("DistanceX", 1, 1, 1, 2, Q("32 mm")))
sketch17.addConstraint(Sketcher.Constraint("DistanceY", 0, 2, 0, 1, Q("2 mm")))
sketch17.addConstraint(Sketcher.Constraint("DistanceX", 0, 2, -1, 1, Q("347 mm")))
sketch17.addConstraint(Sketcher.Constraint("DistanceY", -1, 1, 0, 2, Q("149 mm")))
pad15 = doc.addObject("PartDesign::Pad", "Pad014")
body.addObject(pad15)
pad15.Profile = sketch17
pad15.Length = 25

# Sketch on YZ plane
sketch18 = doc.addObject("Sketcher::SketchObject", "Sketch017")
body.addObject(sketch18)
sketch18.AttachmentSupport = (doc.YZ_Plane, [""])
sketch18.MapMode = "FlatFace"
sketch18.AttachmentOffset = App.Placement(V(0, 0, -53), App.Rotation())
sketch18.addGeometry(Part.LineSegment(V(-327, 82, 0), V(-327, 74, 0)), False)
sketch18.addGeometry(Part.LineSegment(V(-327, 74, 0), V(-335, 74, 0)), False)
sketch18.addGeometry(Part.LineSegment(V(-335, 74, 0), V(-335, 82, 0)), False)
sketch18.addGeometry(Part.LineSegment(V(-335, 82, 0), V(-327, 82, 0)), False)
sketch18.addGeometry(Part.LineSegment(V(-327, 66, 0), V(-327, 58, 0)), False)
sketch18.addGeometry(Part.LineSegment(V(-327, 58, 0), V(-335, 58, 0)), False)
sketch18.addGeometry(Part.LineSegment(V(-335, 58, 0), V(-335, 66, 0)), False)
sketch18.addGeometry(Part.LineSegment(V(-335, 66, 0), V(-327, 66, 0)), False)
sketch18.addGeometry(Part.LineSegment(V(-327, 50, 0), V(-327, 42, 0)), False)
sketch18.addGeometry(Part.LineSegment(V(-327, 42, 0), V(-335, 42, 0)), False)
sketch18.addGeometry(Part.LineSegment(V(-335, 42, 0), V(-335, 50, 0)), False)
sketch18.addGeometry(Part.LineSegment(V(-335, 50, 0), V(-327, 50, 0)), False)
sketch18.addGeometry(Part.LineSegment(V(-327, 34, 0), V(-327, 26, 0)), False)
sketch18.addGeometry(Part.LineSegment(V(-327, 26, 0), V(-335, 26, 0)), False)
sketch18.addGeometry(Part.LineSegment(V(-335, 26, 0), V(-335, 34, 0)), False)
sketch18.addGeometry(Part.LineSegment(V(-335, 34, 0), V(-327, 34, 0)), False)
sketch18.addGeometry(Part.LineSegment(V(-327, 18, 0), V(-327, 10, 0)), False)
sketch18.addGeometry(Part.LineSegment(V(-327, 10, 0), V(-335, 10, 0)), False)
sketch18.addGeometry(Part.LineSegment(V(-335, 10, 0), V(-335, 18, 0)), False)
sketch18.addGeometry(Part.LineSegment(V(-335, 18, 0), V(-327, 18, 0)), False)
sketch18.addGeometry(Part.LineSegment(V(-327, 98, 0), V(-327, 90, 0)), False)
sketch18.addGeometry(Part.LineSegment(V(-327, 90, 0), V(-335, 90, 0)), False)
sketch18.addGeometry(Part.LineSegment(V(-335, 90, 0), V(-335, 98, 0)), False)
sketch18.addGeometry(Part.LineSegment(V(-335, 98, 0), V(-327, 98, 0)), False)
sketch18.addConstraint(Sketcher.Constraint("Coincident", 0, 2, 1, 1))
sketch18.addConstraint(Sketcher.Constraint("Coincident", 1, 2, 2, 1))
sketch18.addConstraint(Sketcher.Constraint("Coincident", 2, 2, 3, 1))
sketch18.addConstraint(Sketcher.Constraint("Coincident", 3, 2, 0, 1))
sketch18.addConstraint(Sketcher.Constraint("Coincident", 4, 2, 5, 1))
sketch18.addConstraint(Sketcher.Constraint("Coincident", 5, 2, 6, 1))
sketch18.addConstraint(Sketcher.Constraint("Coincident", 6, 2, 7, 1))
sketch18.addConstraint(Sketcher.Constraint("Coincident", 7, 2, 4, 1))
sketch18.addConstraint(Sketcher.Constraint("Coincident", 8, 2, 9, 1))
sketch18.addConstraint(Sketcher.Constraint("Coincident", 9, 2, 10, 1))
sketch18.addConstraint(Sketcher.Constraint("Coincident", 10, 2, 11, 1))
sketch18.addConstraint(Sketcher.Constraint("Coincident", 11, 2, 8, 1))
sketch18.addConstraint(Sketcher.Constraint("Coincident", 12, 2, 13, 1))
sketch18.addConstraint(Sketcher.Constraint("Coincident", 13, 2, 14, 1))
sketch18.addConstraint(Sketcher.Constraint("Coincident", 14, 2, 15, 1))
sketch18.addConstraint(Sketcher.Constraint("Coincident", 15, 2, 12, 1))
sketch18.addConstraint(Sketcher.Constraint("Coincident", 16, 2, 17, 1))
sketch18.addConstraint(Sketcher.Constraint("Coincident", 17, 2, 18, 1))
sketch18.addConstraint(Sketcher.Constraint("Coincident", 18, 2, 19, 1))
sketch18.addConstraint(Sketcher.Constraint("Coincident", 19, 2, 16, 1))
sketch18.addConstraint(Sketcher.Constraint("Coincident", 20, 2, 21, 1))
sketch18.addConstraint(Sketcher.Constraint("Coincident", 21, 2, 22, 1))
sketch18.addConstraint(Sketcher.Constraint("Coincident", 22, 2, 23, 1))
sketch18.addConstraint(Sketcher.Constraint("Coincident", 23, 2, 20, 1))
sketch18.addConstraint(Sketcher.Constraint("Vertical", 0))
sketch18.addConstraint(Sketcher.Constraint("Horizontal", 1))
sketch18.addConstraint(Sketcher.Constraint("Vertical", 2))
sketch18.addConstraint(Sketcher.Constraint("Horizontal", 3))
sketch18.addConstraint(Sketcher.Constraint("Vertical", 4))
sketch18.addConstraint(Sketcher.Constraint("Horizontal", 5))
sketch18.addConstraint(Sketcher.Constraint("Vertical", 6))
sketch18.addConstraint(Sketcher.Constraint("Horizontal", 7))
sketch18.addConstraint(Sketcher.Constraint("Vertical", 8))
sketch18.addConstraint(Sketcher.Constraint("Horizontal", 9))
sketch18.addConstraint(Sketcher.Constraint("Vertical", 10))
sketch18.addConstraint(Sketcher.Constraint("Horizontal", 11))
sketch18.addConstraint(Sketcher.Constraint("Vertical", 12))
sketch18.addConstraint(Sketcher.Constraint("Horizontal", 13))
sketch18.addConstraint(Sketcher.Constraint("Vertical", 14))
sketch18.addConstraint(Sketcher.Constraint("Horizontal", 15))
sketch18.addConstraint(Sketcher.Constraint("Vertical", 16))
sketch18.addConstraint(Sketcher.Constraint("Horizontal", 17))
sketch18.addConstraint(Sketcher.Constraint("Vertical", 18))
sketch18.addConstraint(Sketcher.Constraint("Horizontal", 19))
sketch18.addConstraint(Sketcher.Constraint("Vertical", 20))
sketch18.addConstraint(Sketcher.Constraint("Horizontal", 21))
sketch18.addConstraint(Sketcher.Constraint("Vertical", 22))
sketch18.addConstraint(Sketcher.Constraint("Horizontal", 23))
sketch18.addConstraint(Sketcher.Constraint("Vertical", 3, 2, 4, 2))
sketch18.addConstraint(Sketcher.Constraint("Vertical", 2, 2, 5, 2))
sketch18.addConstraint(Sketcher.Constraint("Vertical", 7, 2, 8, 2))
sketch18.addConstraint(Sketcher.Constraint("Vertical", 6, 2, 9, 2))
sketch18.addConstraint(Sketcher.Constraint("Vertical", 11, 2, 12, 2))
sketch18.addConstraint(Sketcher.Constraint("Vertical", 10, 2, 13, 2))
sketch18.addConstraint(Sketcher.Constraint("Vertical", 15, 2, 16, 2))
sketch18.addConstraint(Sketcher.Constraint("Vertical", 14, 2, 17, 2))
sketch18.addConstraint(Sketcher.Constraint("Vertical", 19, 2, 20, 2))
sketch18.addConstraint(Sketcher.Constraint("Vertical", 18, 2, 21, 2))
sketch18.addConstraint(Sketcher.Constraint("Equal", 23, 0))
sketch18.addConstraint(Sketcher.Constraint("Equal", 2, 4))
sketch18.addConstraint(Sketcher.Constraint("Equal", 6, 8))
sketch18.addConstraint(Sketcher.Constraint("Equal", 10, 12))
sketch18.addConstraint(Sketcher.Constraint("Equal", 14, 16))
sketch18.addConstraint(Sketcher.Constraint("Equal", 18, 20))
sketch18.addConstraint(Sketcher.Constraint("DistanceX", 1, 2, 1, 1, Q("8 mm")))
sketch18.addConstraint(Sketcher.Constraint("DistanceX", 0, 2, -1, 1, Q("327 mm")))
sketch18.addConstraint(Sketcher.Constraint("DistanceY", -1, 1, 0, 2, Q("74 mm")))
sketch18.addConstraint(Sketcher.Constraint("DistanceY", -1, 1, 4, 2, Q("58 mm")))
sketch18.addConstraint(Sketcher.Constraint("DistanceY", -1, 1, 8, 2, Q("42 mm")))
sketch18.addConstraint(Sketcher.Constraint("DistanceY", -1, 1, 12, 2, Q("26 mm")))
sketch18.addConstraint(Sketcher.Constraint("DistanceY", -1, 1, 16, 2, Q("10 mm")))
sketch18.addConstraint(Sketcher.Constraint("DistanceY", -1, 1, 20, 2, Q("90 mm")))
pocket3 = doc.addObject("PartDesign::Pocket", "Pocket002")
body.addObject(pocket3)
pocket3.Profile = sketch18
pocket3.Length = 25
pocket3.Reversed = True

# Sketch on XZ plane
sketch19 = doc.addObject("Sketcher::SketchObject", "Sketch018")
body.addObject(sketch19)
sketch19.AttachmentSupport = (doc.XZ_Plane, [""])
sketch19.MapMode = "FlatFace"
sketch19.AttachmentOffset = App.Placement(V(0, 0, 314), App.Rotation())
sketch19.addGeometry(Part.Circle(V(-100, 85, 0), V(0, 0, 1), 4), False)
sketch19.addConstraint(Sketcher.Constraint("Diameter", 0, Q("8 mm")))
sketch19.addConstraint(Sketcher.Constraint("DistanceX", 0, 3, -1, 1, Q("100 mm")))
sketch19.addConstraint(Sketcher.Constraint("DistanceY", -1, 1, 0, 3, Q("85 mm")))
doc.recompute()
hole = doc.addObject("PartDesign::Hole", "Hole")
body.addObject(hole)
hole.Profile = sketch19
hole.ThreadType = "None"
hole.Diameter = 8
hole.DepthType = "ThroughAll"

doc.recompute()
